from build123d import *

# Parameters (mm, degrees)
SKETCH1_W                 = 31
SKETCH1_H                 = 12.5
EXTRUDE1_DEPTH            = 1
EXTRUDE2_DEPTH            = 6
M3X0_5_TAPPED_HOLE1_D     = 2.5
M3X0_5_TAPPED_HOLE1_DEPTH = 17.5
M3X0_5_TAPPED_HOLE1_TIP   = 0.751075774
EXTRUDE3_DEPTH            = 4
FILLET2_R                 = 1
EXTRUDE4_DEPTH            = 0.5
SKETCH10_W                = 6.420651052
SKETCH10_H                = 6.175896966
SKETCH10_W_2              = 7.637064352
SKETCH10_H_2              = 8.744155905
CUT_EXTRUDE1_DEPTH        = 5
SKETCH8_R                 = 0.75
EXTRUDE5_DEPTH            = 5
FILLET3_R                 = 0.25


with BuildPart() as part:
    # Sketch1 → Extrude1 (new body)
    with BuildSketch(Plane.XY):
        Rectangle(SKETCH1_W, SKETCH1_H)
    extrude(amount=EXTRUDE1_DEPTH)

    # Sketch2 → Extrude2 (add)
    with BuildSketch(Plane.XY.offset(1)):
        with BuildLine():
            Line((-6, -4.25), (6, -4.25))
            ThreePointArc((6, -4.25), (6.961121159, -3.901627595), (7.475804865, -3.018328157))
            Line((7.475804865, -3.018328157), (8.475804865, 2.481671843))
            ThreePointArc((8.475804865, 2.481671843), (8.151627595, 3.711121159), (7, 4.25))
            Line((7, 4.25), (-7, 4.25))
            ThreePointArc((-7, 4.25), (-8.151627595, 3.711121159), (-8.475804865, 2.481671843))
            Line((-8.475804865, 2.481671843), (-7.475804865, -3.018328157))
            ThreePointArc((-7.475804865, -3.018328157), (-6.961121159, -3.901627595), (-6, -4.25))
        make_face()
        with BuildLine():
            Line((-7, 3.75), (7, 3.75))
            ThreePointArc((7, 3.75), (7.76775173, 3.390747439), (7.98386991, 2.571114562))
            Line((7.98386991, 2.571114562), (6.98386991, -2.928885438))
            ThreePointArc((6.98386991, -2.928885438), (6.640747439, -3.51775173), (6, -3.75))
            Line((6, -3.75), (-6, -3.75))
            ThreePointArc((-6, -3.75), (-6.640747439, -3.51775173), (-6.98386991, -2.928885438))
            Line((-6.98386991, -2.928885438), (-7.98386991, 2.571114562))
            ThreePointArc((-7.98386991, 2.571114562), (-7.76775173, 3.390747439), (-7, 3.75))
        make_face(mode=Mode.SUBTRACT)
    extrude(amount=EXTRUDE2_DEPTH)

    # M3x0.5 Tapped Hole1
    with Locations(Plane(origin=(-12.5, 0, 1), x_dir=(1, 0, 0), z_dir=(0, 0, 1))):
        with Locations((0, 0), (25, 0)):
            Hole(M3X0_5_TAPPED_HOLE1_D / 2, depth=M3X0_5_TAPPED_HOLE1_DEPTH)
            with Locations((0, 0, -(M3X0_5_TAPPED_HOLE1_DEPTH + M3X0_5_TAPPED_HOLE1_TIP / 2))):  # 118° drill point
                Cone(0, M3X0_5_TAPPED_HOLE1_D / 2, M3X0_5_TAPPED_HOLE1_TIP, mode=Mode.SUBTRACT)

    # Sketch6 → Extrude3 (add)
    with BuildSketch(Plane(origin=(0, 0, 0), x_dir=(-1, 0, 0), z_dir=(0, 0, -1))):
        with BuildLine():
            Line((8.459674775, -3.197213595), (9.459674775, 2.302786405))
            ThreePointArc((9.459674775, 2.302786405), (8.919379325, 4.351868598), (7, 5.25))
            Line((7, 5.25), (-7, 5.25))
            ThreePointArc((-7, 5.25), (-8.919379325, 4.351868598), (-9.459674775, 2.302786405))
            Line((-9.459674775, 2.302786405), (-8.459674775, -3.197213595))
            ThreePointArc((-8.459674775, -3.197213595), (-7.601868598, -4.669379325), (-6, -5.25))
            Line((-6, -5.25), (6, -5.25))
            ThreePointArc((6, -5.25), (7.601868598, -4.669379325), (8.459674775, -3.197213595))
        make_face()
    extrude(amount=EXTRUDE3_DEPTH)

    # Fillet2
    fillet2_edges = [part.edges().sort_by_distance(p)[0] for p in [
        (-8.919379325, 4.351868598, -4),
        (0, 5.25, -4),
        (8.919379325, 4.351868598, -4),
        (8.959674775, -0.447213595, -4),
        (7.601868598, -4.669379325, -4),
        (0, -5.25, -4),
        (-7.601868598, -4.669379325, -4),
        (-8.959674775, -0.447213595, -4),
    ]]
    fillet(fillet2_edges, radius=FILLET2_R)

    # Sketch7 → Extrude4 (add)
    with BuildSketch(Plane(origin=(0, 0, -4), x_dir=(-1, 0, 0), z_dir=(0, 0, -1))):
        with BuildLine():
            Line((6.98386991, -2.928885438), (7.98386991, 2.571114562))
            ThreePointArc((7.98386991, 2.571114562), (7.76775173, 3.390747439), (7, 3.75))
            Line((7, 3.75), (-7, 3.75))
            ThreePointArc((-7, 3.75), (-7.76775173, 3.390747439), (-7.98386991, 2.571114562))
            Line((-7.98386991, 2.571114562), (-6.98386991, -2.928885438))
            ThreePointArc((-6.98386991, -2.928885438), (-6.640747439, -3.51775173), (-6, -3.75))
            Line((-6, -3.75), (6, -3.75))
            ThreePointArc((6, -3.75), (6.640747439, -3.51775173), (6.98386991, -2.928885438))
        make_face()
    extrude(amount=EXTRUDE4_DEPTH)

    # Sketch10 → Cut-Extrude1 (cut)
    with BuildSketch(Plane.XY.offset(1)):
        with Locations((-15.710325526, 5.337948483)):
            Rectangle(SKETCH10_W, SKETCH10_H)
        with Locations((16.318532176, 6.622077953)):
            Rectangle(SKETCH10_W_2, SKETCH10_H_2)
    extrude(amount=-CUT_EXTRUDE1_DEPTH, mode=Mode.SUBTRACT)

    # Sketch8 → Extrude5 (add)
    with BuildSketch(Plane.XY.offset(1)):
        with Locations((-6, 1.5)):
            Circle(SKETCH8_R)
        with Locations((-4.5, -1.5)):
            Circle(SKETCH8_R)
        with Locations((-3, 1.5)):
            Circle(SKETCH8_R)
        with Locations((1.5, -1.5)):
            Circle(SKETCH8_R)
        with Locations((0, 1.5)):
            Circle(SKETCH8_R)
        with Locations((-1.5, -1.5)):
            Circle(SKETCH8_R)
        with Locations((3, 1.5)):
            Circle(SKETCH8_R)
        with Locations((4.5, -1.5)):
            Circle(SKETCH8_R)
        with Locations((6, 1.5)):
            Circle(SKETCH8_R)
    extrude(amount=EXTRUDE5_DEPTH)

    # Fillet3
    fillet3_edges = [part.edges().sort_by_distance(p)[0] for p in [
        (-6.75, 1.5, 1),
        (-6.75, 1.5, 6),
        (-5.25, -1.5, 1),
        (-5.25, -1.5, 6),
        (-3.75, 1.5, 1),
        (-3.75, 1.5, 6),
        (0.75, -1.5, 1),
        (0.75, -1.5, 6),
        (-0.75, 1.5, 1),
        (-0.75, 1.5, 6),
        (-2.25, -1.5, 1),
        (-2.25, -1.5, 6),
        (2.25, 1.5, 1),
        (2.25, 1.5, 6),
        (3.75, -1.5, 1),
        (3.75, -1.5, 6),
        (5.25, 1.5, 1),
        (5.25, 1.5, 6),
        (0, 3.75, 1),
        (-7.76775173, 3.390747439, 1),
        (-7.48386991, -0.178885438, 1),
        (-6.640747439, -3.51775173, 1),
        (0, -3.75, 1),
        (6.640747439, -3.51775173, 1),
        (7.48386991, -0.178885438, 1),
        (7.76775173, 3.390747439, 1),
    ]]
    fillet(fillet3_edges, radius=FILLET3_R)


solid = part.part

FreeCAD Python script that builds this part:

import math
import FreeCAD as App
import Part
import Sketcher
from FreeCAD import Vector
Q = App.Units.Quantity


def edges_at(feature, points):
    """Names of the edges that pass closest to the given points."""
    edges = feature.Shape.Edges
    near = lambda p: min(range(len(edges)), key=lambda i: edges[i].distToShape(Part.Vertex(*p))[0])
    return sorted({f"Edge{near(p) + 1}" for p in points})

doc = App.newDocument("Part")
params = doc.addObject("Spreadsheet::Sheet", "Params")
for row, (alias, value) in enumerate([
    ("sketch1_width", "31 mm"),
    ("sketch1_height", "12.5 mm"),
    ("pad1_length", "1 mm"),
    ("sketch2_radius", "1 mm"),
    ("sketch2_radius2", "1.5 mm"),
    ("sketch2_width", "12 mm"),
    ("sketch2_width2", "14 mm"),
    ("pad2_length", "6 mm"),
    ("sketch3_diameter", "2.5 mm"),
    ("hole_diameter", "2.5 mm"),
    ("hole_depth", "17.5 mm"),
    ("sketch4_radius", "2.5 mm"),
    ("sketch4_width", "14 mm"),
    ("sketch4_width2", "12 mm"),
    ("pad3_length", "4 mm"),
    ("fillet_radius", "1 mm"),
    ("sketch5_radius", "1 mm"),
    ("sketch5_width", "14 mm"),
    ("sketch5_width2", "12 mm"),
    ("pad4_length", "0.5 mm"),
    ("pocket1_length", "5 mm"),
    ("sketch7_diameter", "1.5 mm"),
    ("pad5_length", "5 mm"),
    ("fillet2_radius", "0.25 mm"),
], start=1):
    params.set(f"A{row}", alias)
    params.set(f"B{row}", "=" + value)
    params.setAlias(f"B{row}", alias)

body = doc.addObject("PartDesign::Body", "Body")

# Sketch on XY plane
sketch1 = body.newObject("Sketcher::SketchObject", "Sketch")
sketch1.AttachmentSupport = (doc.getObject("XY_Plane"), [""])
sketch1.MapMode = "FlatFace"
sketch1.addGeometry([
    Part.LineSegment(Vector(-15.5, 6.25, 0), Vector(-15.5, -6.25, 0)),
    Part.LineSegment(Vector(-15.5, -6.25, 0), Vector(15.5, -6.25, 0)),
    Part.LineSegment(Vector(15.5, -6.25, 0), Vector(15.5, 6.25, 0)),
    Part.LineSegment(Vector(15.5, 6.25, 0), Vector(-15.5, 6.25, 0)),
], False)
sketch1.addConstraint([
    Sketcher.Constraint("Coincident", 0, 2, 1, 1),
    Sketcher.Constraint("Coincident", 1, 2, 2, 1),
    Sketcher.Constraint("Coincident", 2, 2, 3, 1),
    Sketcher.Constraint("Coincident", 3, 2, 0, 1),
    Sketcher.Constraint("Vertical", 0),
    Sketcher.Constraint("Horizontal", 1),
    Sketcher.Constraint("Vertical", 2),
    Sketcher.Constraint("Horizontal", 3),
    Sketcher.Constraint("Symmetric", 0, 2, 2, 2, -1, 1),
    Sketcher.Constraint("DistanceX", 1, 1, 1, 2, Q("31 mm")),
    Sketcher.Constraint("DistanceY", 0, 2, 0, 1, Q("12.5 mm")),
])
sketch1.setExpression("Constraints[9]", "Params.sketch1_width")
sketch1.setExpression("Constraints[10]", "Params.sketch1_height")
pad1 = body.newObject("PartDesign::Pad", "Pad")
pad1.Profile = sketch1
pad1.setExpression("Length", "Params.pad1_length")

# Sketch on XY plane
sketch2 = body.newObject("Sketcher::SketchObject", "Sketch001")
sketch2.AttachmentSupport = (doc.getObject("XY_Plane"), [""])
sketch2.MapMode = "FlatFace"
sketch2.AttachmentOffset = App.Placement(Vector(0, 0, 1), App.Rotation())
sketch2.addGeometry([
    Part.LineSegment(Vector(-6, -4.25, 0), Vector(6, -4.25, 0)),  # 0
    Part.ArcOfCircle(Part.Circle(Vector(6, -2.75, 0), Vector(0, 0, 1), 1.5), math.radians(-90), math.radians(-10.304846)),  # 1
    Part.LineSegment(Vector(7.475805, -3.018328, 0), Vector(8.475805, 2.481672, 0)),  # 2
    Part.ArcOfCircle(Part.Circle(Vector(7, 2.75, 0), Vector(0, 0, 1), 1.5), math.radians(-10.304846), math.radians(90)),  # 3
    Part.LineSegment(Vector(7, 4.25, 0), Vector(-7, 4.25, 0)),  # 4
    Part.ArcOfCircle(Part.Circle(Vector(-7, 2.75, 0), Vector(0, 0, 1), 1.5), math.radians(90), math.radians(190.304846)),  # 5
    Part.LineSegment(Vector(-8.475805, 2.481672, 0), Vector(-7.475805, -3.018328, 0)),  # 6
    Part.ArcOfCircle(Part.Circle(Vector(-6, -2.75, 0), Vector(0, 0, 1), 1.5), math.radians(-169.695154), math.radians(-90)),  # 7
    Part.ArcOfCircle(Part.Circle(Vector(-7, 2.75, 0), Vector(0, 0, 1), 1), math.radians(90), math.radians(190.304846)),  # 8
    Part.LineSegment(Vector(-7, 3.75, 0), Vector(7, 3.75, 0)),  # 9
    Part.ArcOfCircle(Part.Circle(Vector(7, 2.75, 0), Vector(0, 0, 1), 1), math.radians(-10.304846), math.radians(90)),  # 10
    Part.LineSegment(Vector(7.98387, 2.571115, 0), Vector(6.98387, -2.928885, 0)),  # 11
    Part.ArcOfCircle(Part.Circle(Vector(6, -2.75, 0), Vector(0, 0, 1), 1), math.radians(-90), math.radians(-10.304847)),  # 12
    Part.LineSegment(Vector(6, -3.75, 0), Vector(-6, -3.75, 0)),  # 13
    Part.ArcOfCircle(Part.Circle(Vector(-6, -2.75, 0), Vector(0, 0, 1), 1), math.radians(-169.695153), math.radians(-90)),  # 14
    Part.LineSegment(Vector(-6.98387, -2.928885, 0), Vector(-7.98387, 2.571115, 0)),  # 15
], False)
sketch2.addConstraint([
    Sketcher.Constraint("Tangent", 0, 2, 1, 1),
    Sketcher.Constraint("Tangent", 1, 2, 2, 1),
    Sketcher.Constraint("Tangent", 2, 2, 3, 1),
    Sketcher.Constraint("Tangent", 3, 2, 4, 1),
    Sketcher.Constraint("Tangent", 4, 2, 5, 1),
    Sketcher.Constraint("Tangent", 5, 2, 6, 1),
    Sketcher.Constraint("Tangent", 6, 2, 7, 1),
    Sketcher.Constraint("Tangent", 7, 2, 0, 1),
    Sketcher.Constraint("Tangent", 8, 1, 9, 1),
    Sketcher.Constraint("Tangent", 9, 2, 10, 2),
    Sketcher.Constraint("Tangent", 10, 1, 11, 1),
    Sketcher.Constraint("Tangent", 11, 2, 12, 2),
    Sketcher.Constraint("Tangent", 12, 1, 13, 1),
    Sketcher.Constraint("Tangent", 13, 2, 14, 2),
    Sketcher.Constraint("Tangent", 14, 1, 15, 1),
    Sketcher.Constraint("Tangent", 15, 2, 8, 2),
    Sketcher.Constraint("Horizontal", 0),
    Sketcher.Constraint("Horizontal", 4),
    Sketcher.Constraint("Horizontal", 9),
    Sketcher.Constraint("Horizontal", 13),
    Sketcher.Constraint("Coincident", 8, 3, 5, 3),
    Sketcher.Constraint("Coincident", 10, 3, 3, 3),
    Sketcher.Constraint("Coincident", 12, 3, 1, 3),
    Sketcher.Constraint("Coincident", 14, 3, 7, 3),
    Sketcher.Constraint("Equal", 1, 3),
    Sketcher.Constraint("Equal", 3, 5),
    Sketcher.Constraint("Equal", 5, 7),
    Sketcher.Constraint("Equal", 10, 12),
    Sketcher.Constraint("Symmetric", 2, 2, 5, 2, -2),
    Sketcher.Constraint("Radius", 8, Q("1 mm")),
    Sketcher.Constraint("Radius", 1, Q("1.5 mm")),
    Sketcher.Constraint("DistanceX", 0, 1, 0, 2, Q("12 mm")),
    Sketcher.Constraint("DistanceX", 4, 2, 4, 1, Q("14 mm")),
    Sketcher.Constraint("DistanceY", 0, 2, 3, 3, Q("7 mm")),
    Sketcher.Constraint("DistanceY", 1, 3, -1, 1, Q("2.75 mm")),
])
sketch2.setExpression("Constraints[29]", "Params.sketch2_radius")
sketch2.setExpression("Constraints[30]", "Params.sketch2_radius2")
sketch2.setExpression("Constraints[31]", "Params.sketch2_width")
sketch2.setExpression("Constraints[32]", "Params.sketch2_width2")
pad2 = body.newObject("PartDesign::Pad", "Pad001")
pad2.Profile = sketch2
pad2.setExpression("Length", "Params.pad2_length")

# Sketch on XY plane
sketch3 = body.newObject("Sketcher::SketchObject", "Sketch002")
sketch3.AttachmentSupport = (doc.getObject("XY_Plane"), [""])
sketch3.MapMode = "FlatFace"
sketch3.AttachmentOffset = App.Placement(Vector(0, 0, 1), App.Rotation())
sketch3.addGeometry([
    Part.Circle(Vector(-12.5, 0, 0), Vector(0, 0, 1), 1.25),
    Part.Circle(Vector(12.5, 0, 0), Vector(0, 0, 1), 1.25),
], False)
sketch3.addConstraint([
    Sketcher.Constraint("Equal", 0, 1),
    Sketcher.Constraint("Symmetric", 0, 3, 1, 3, -1, 1),
    Sketcher.Constraint("PointOnObject", 0, 3, -1),
    Sketcher.Constraint("Diameter", 0, Q("2.5 mm")),
    Sketcher.Constraint("DistanceX", 0, 3, 1, 3, Q("25 mm")),
])
sketch3.setExpression("Constraints[3]", "Params.sketch3_diameter")
doc.recompute()
hole = body.newObject("PartDesign::Hole", "Hole")
hole.Profile = sketch3
hole.ThreadType = "None"
hole.setExpression("Diameter", "Params.hole_diameter")
hole.DepthType = "Dimension"
hole.setExpression("Depth", "Params.hole_depth")
hole.DrillPoint = "Angled"
hole.DrillPointAngle = 118

# Sketch on XY plane
sketch4 = body.newObject("Sketcher::SketchObject", "Sketch003")
sketch4.AttachmentSupport = (doc.getObject("XY_Plane"), [""])
sketch4.MapMode = "FlatFace"
sketch4.addGeometry([
    Part.LineSegment(Vector(-8.459675, -3.197214, 0), Vector(-9.459675, 2.302786, 0)),  # 0
    Part.ArcOfCircle(Part.Circle(Vector(-7, 2.75, 0), Vector(0, 0, 1), 2.5), math.radians(90), math.radians(190.304846)),  # 1
    Part.LineSegment(Vector(-7, 5.25, 0), Vector(7, 5.25, 0)),  # 2
    Part.ArcOfCircle(Part.Circle(Vector(7, 2.75, 0), Vector(0, 0, 1), 2.5), math.radians(-10.304846), math.radians(90)),  # 3
    Part.LineSegment(Vector(9.459675, 2.302786, 0), Vector(8.459675, -3.197214, 0)),  # 4
    Part.ArcOfCircle(Part.Circle(Vector(6, -2.75, 0), Vector(0, 0, 1), 2.5), math.radians(-90), math.radians(-10.304846)),  # 5
    Part.LineSegment(Vector(6, -5.25, 0), Vector(-6, -5.25, 0)),  # 6
    Part.ArcOfCircle(Part.Circle(Vector(-6, -2.75, 0), Vector(0, 0, 1), 2.5), math.radians(-169.695154), math.radians(-90)),  # 7
], False)
sketch4.addConstraint([
    Sketcher.Constraint("Tangent", 0, 2, 1, 2),
    Sketcher.Constraint("Tangent", 1, 1, 2, 1),
    Sketcher.Constraint("Tangent", 2, 2, 3, 2),
    Sketcher.Constraint("Tangent", 3, 1, 4, 1),
    Sketcher.Constraint("Tangent", 4, 2, 5, 2),
    Sketcher.Constraint("Tangent", 5, 1, 6, 1),
    Sketcher.Constraint("Tangent", 6, 2, 7, 2),
    Sketcher.Constraint("Tangent", 7, 1, 0, 1),
    Sketcher.Constraint("Horizontal", 2),
    Sketcher.Constraint("Horizontal", 6),
    Sketcher.Constraint("Equal", 1, 3),
    Sketcher.Constraint("Equal", 3, 5),
    Sketcher.Constraint("Equal", 5, 7),
    Sketcher.Constraint("Symmetric", 0, 2, 3, 1, -2),
    Sketcher.Constraint("Radius", 1, Q("2.5 mm")),
    Sketcher.Constraint("DistanceX", 2, 1, 2, 2, Q("14 mm")),
    Sketcher.Constraint("DistanceX", 6, 2, 6, 1, Q("12 mm")),
    Sketcher.Constraint("DistanceY", 7, 3, 1, 1, Q("8 mm")),
    Sketcher.Constraint("DistanceY", -1, 1, 1, 3, Q("2.75 mm")),
])
sketch4.setExpression("Constraints[14]", "Params.sketch4_radius")
sketch4.setExpression("Constraints[15]", "Params.sketch4_width")
sketch4.setExpression("Constraints[16]", "Params.sketch4_width2")
pad3 = body.newObject("PartDesign::Pad", "Pad002")
pad3.Profile = sketch4
pad3.setExpression("Length", "Params.pad3_length")
pad3.Reversed = True
doc.recompute()

fillet = body.newObject("PartDesign::Fillet", "Fillet")
fillet.Base = (pad3, edges_at(pad3, [
    (-8.919, 4.352, -4),
    (0, 5.25, -4),
    (8.919, 4.352, -4),
    (8.96, -0.447, -4),
    (7.602, -4.669, -4),
    (0, -5.25, -4),
    (-7.602, -4.669, -4),
    (-8.96, -0.447, -4),
]))
fillet.setExpression("Radius", "Params.fillet_radius")

# Sketch on XY plane
sketch5 = body.newObject("Sketcher::SketchObject", "Sketch004")
sketch5.AttachmentSupport = (doc.getObject("XY_Plane"), [""])
sketch5.MapMode = "FlatFace"
sketch5.AttachmentOffset = App.Placement(Vector(0, 0, -4), App.Rotation())
sketch5.addGeometry([
    Part.LineSegment(Vector(-6.98387, -2.928885, 0), Vector(-7.98387, 2.571115, 0)),  # 0
    Part.ArcOfCircle(Part.Circle(Vector(-7, 2.75, 0), Vector(0, 0, 1), 1), math.radians(90), math.radians(190.304846)),  # 1
    Part.LineSegment(Vector(-7, 3.75, 0), Vector(7, 3.75, 0)),  # 2
    Part.ArcOfCircle(Part.Circle(Vector(7, 2.75, 0), Vector(0, 0, 1), 1), math.radians(-10.304846), math.radians(90)),  # 3
    Part.LineSegment(Vector(7.98387, 2.571115, 0), Vector(6.98387, -2.928885, 0)),  # 4
    Part.ArcOfCircle(Part.Circle(Vector(6, -2.75, 0), Vector(0, 0, 1), 1), math.radians(-90), math.radians(-10.304847)),  # 5
    Part.LineSegment(Vector(6, -3.75, 0), Vector(-6, -3.75, 0)),  # 6
    Part.ArcOfCircle(Part.Circle(Vector(-6, -2.75, 0), Vector(0, 0, 1), 1), math.radians(-169.695153), math.radians(-90)),  # 7
], False)
sketch5.addConstraint([
    Sketcher.Constraint("Tangent", 0, 2, 1, 2),
    Sketcher.Constraint("Tangent", 1, 1, 2, 1),
    Sketcher.Constraint("Tangent", 2, 2, 3, 2),
    Sketcher.Constraint("Tangent", 3, 1, 4, 1),
    Sketcher.Constraint("Tangent", 4, 2, 5, 2),
    Sketcher.Constraint("Tangent", 5, 1, 6, 1),
    Sketcher.Constraint("Tangent", 6, 2, 7, 2),
    Sketcher.Constraint("Tangent", 7, 1, 0, 1),
    Sketcher.Constraint("Horizontal", 2),
    Sketcher.Constraint("Horizontal", 6),
    Sketcher.Constraint("Equal", 1, 3),
    Sketcher.Constraint("Equal", 3, 5),
    Sketcher.Constraint("Equal", 5, 7),
    Sketcher.Constraint("Symmetric", 0, 2, 3, 1, -2),
    Sketcher.Constraint("Radius", 1, Q("1 mm")),
    Sketcher.Constraint("DistanceX", 2, 1, 2, 2, Q("14 mm")),
    Sketcher.Constraint("DistanceX", 6, 2, 6, 1, Q("12 mm")),
    Sketcher.Constraint("DistanceY", 5, 3, 3, 3, Q("5.5 mm")),
    Sketcher.Constraint("DistanceY", -1, 1, 1, 3, Q("2.75 mm")),
])
sketch5.setExpression("Constraints[14]", "Params.sketch5_radius")
sketch5.setExpression("Constraints[15]", "Params.sketch5_width")
sketch5.setExpression("Constraints[16]", "Params.sketch5_width2")
pad4 = body.newObject("PartDesign::Pad", "Pad003")
pad4.Profile = sketch5
pad4.setExpression("Length", "Params.pad4_length")
pad4.Reversed = True

# Sketch on XY plane
sketch6 = body.newObject("Sketcher::SketchObject", "Sketch005")
sketch6.AttachmentSupport = (doc.getObject("XY_Plane"), [""])
sketch6.MapMode = "FlatFace"
sketch6.AttachmentOffset = App.Placement(Vector(0, 0, 1), App.Rotation())
sketch6.addGeometry([
    Part.LineSegment(Vector(-18.920651, 8.425897, 0), Vector(-18.920651, 2.25, 0)),  # 0
    Part.LineSegment(Vector(-18.920651, 2.25, 0), Vector(-12.5, 2.25, 0)),  # 1
    Part.LineSegment(Vector(-12.5, 2.25, 0), Vector(-12.5, 8.425897, 0)),  # 2
    Part.LineSegment(Vector(-12.5, 8.425897, 0), Vector(-18.920651, 8.425897, 0)),  # 3
    Part.LineSegment(Vector(12.5, 10.994156, 0), Vector(12.5, 2.25, 0)),  # 4
    Part.LineSegment(Vector(12.5, 2.25, 0), Vector(20.137064, 2.25, 0)),  # 5
    Part.LineSegment(Vector(20.137064, 2.25, 0), Vector(20.137064, 10.994156, 0)),  # 6
    Part.LineSegment(Vector(20.137064, 10.994156, 0), Vector(12.5, 10.994156, 0)),  # 7
], False)
sketch6.addConstraint([
    Sketcher.Constraint("Coincident", 0, 2, 1, 1),
    Sketcher.Constraint("Coincident", 1, 2, 2, 1),
    Sketcher.Constraint("Coincident", 2, 2, 3, 1),
    Sketcher.Constraint("Coincident", 3, 2, 0, 1),
    Sketcher.Constraint("Coincident", 4, 2, 5, 1),
    Sketcher.Constraint("Coincident", 5, 2, 6, 1),
    Sketcher.Constraint("Coincident", 6, 2, 7, 1),
    Sketcher.Constraint("Coincident", 7, 2, 4, 1),
    Sketcher.Constraint("Vertical", 0),
    Sketcher.Constraint("Horizontal", 1),
    Sketcher.Constraint("Vertical", 2),
    Sketcher.Constraint("Horizontal", 3),
    Sketcher.Constraint("Vertical", 4),
    Sketcher.Constraint("Horizontal", 5),
    Sketcher.Constraint("Vertical", 6),
    Sketcher.Constraint("Horizontal", 7),
    Sketcher.Constraint("Symmetric", 1, 2, 4, 2, -2),
    Sketcher.Constraint("DistanceX", 1, 2, 4, 2, Q("25 mm")),
    Sketcher.Constraint("DistanceY", -1, 1, 0, 2, Q("2.25 mm")),
    Sketcher.Constraint("DistanceX", 1, 1, 1, 2, Q("6.420651 mm")),
    Sketcher.Constraint("DistanceX", 5, 1, 5, 2, Q("7.637064 mm")),
    Sketcher.Constraint("DistanceY", 0, 2, 0, 1, Q("6.175897 mm")),
    Sketcher.Constraint("DistanceY", 4, 2, 4, 1, Q("8.744156 mm")),
])
pocket1 = body.newObject("PartDesign::Pocket", "Pocket")
pocket1.Profile = sketch6
pocket1.setExpression("Length", "Params.pocket1_length")

# Sketch on XY plane
sketch7 = body.newObject("Sketcher::SketchObject", "Sketch006")
sketch7.AttachmentSupport = (doc.getObject("XY_Plane"), [""])
sketch7.MapMode = "FlatFace"
sketch7.AttachmentOffset = App.Placement(Vector(0, 0, 1), App.Rotation())
sketch7.addGeometry([
    Part.Circle(Vector(-6, 1.5, 0), Vector(0, 0, 1), 0.75),  # 0
    Part.Circle(Vector(-4.5, -1.5, 0), Vector(0, 0, 1), 0.75),  # 1
    Part.Circle(Vector(-3, 1.5, 0), Vector(0, 0, 1), 0.75),  # 2
    Part.Circle(Vector(1.5, -1.5, 0), Vector(0, 0, 1), 0.75),  # 3
    Part.Circle(Vector(0, 1.5, 0), Vector(0, 0, 1), 0.75),  # 4
    Part.Circle(Vector(-1.5, -1.5, 0), Vector(0, 0, 1), 0.75),  # 5
    Part.Circle(Vector(3, 1.5, 0), Vector(0, 0, 1), 0.75),  # 6
    Part.Circle(Vector(4.5, -1.5, 0), Vector(0, 0, 1), 0.75),  # 7
    Part.Circle(Vector(6, 1.5, 0), Vector(0, 0, 1), 0.75),  # 8
], False)
sketch7.addConstraint([
    Sketcher.Constraint("Equal", 0, 1),
    Sketcher.Constraint("Equal", 1, 2),
    Sketcher.Constraint("Equal", 2, 3),
    Sketcher.Constraint("Equal", 3, 4),
    Sketcher.Constraint("Equal", 4, 5),
    Sketcher.Constraint("Equal", 5, 6),
    Sketcher.Constraint("Equal", 6, 7),
    Sketcher.Constraint("Equal", 7, 8),
    Sketcher.Constraint("Symmetric", 3, 3, 5, 3, -2),
    Sketcher.Constraint("Symmetric", 2, 3, 6, 3, -2),
    Sketcher.Constraint("Symmetric", 1, 3, 7, 3, -2),
    Sketcher.Constraint("Symmetric", 0, 3, 8, 3, -2),
    Sketcher.Constraint("PointOnObject", 4, 3, -2),
    Sketcher.Constraint("Horizontal", 0, 3, 2, 3),
    Sketcher.Constraint("Horizontal", 1, 3, 3, 3),
    Sketcher.Constraint("Horizontal", 2, 3, 4, 3),
    Sketcher.Constraint("Diameter", 0, Q("1.5 mm")),
    Sketcher.Constraint("DistanceX", 0, 3, -1, 1, Q("6 mm")),
    Sketcher.Constraint("DistanceX", 2, 3, -1, 1, Q("3 mm")),
    Sketcher.Constraint("DistanceY", 1, 3, 0, 3, Q("3 mm")),
    Sketcher.Constraint("DistanceX", 1, 3, 3, 3, Q("6 mm")),
    Sketcher.Constraint("DistanceX", 1, 3, 5, 3, Q("3 mm")),
    Sketcher.Constraint("DistanceY", -1, 1, 0, 3, Q("1.5 mm")),
])
sketch7.setExpression("Constraints[16]", "Params.sketch7_diameter")
pad5 = body.newObject("PartDesign::Pad", "Pad004")
pad5.Profile = sketch7
pad5.setExpression("Length", "Params.pad5_length")
doc.recompute()

fillet2 = body.newObject("PartDesign::Fillet", "Fillet001")
fillet2.Base = (pad5, edges_at(pad5, [
    (-6.75, 1.5, 1),
    (-6.75, 1.5, 6),
    (-5.25, -1.5, 1),
    (-5.25, -1.5, 6),
    (-3.75, 1.5, 1),
    (-3.75, 1.5, 6),
    (0.75, -1.5, 1),
    (0.75, -1.5, 6),
    (-0.75, 1.5, 1),
    (-0.75, 1.5, 6),
    (-2.25, -1.5, 1),
    (-2.25, -1.5, 6),
    (2.25, 1.5, 1),
    (2.25, 1.5, 6),
    (3.75, -1.5, 1),
    (3.75, -1.5, 6),
    (5.25, 1.5, 1),
    (5.25, 1.5, 6),
    (0, 3.75, 1),
    (-7.768, 3.391, 1),
    (-7.484, -0.179, 1),
    (-6.641, -3.518, 1),
    (0, -3.75, 1),
    (6.641, -3.518, 1),
    (7.484, -0.179, 1),
    (7.768, 3.391, 1),
]))
fillet2.setExpression("Radius", "Params.fillet2_radius")

doc.recompute()
